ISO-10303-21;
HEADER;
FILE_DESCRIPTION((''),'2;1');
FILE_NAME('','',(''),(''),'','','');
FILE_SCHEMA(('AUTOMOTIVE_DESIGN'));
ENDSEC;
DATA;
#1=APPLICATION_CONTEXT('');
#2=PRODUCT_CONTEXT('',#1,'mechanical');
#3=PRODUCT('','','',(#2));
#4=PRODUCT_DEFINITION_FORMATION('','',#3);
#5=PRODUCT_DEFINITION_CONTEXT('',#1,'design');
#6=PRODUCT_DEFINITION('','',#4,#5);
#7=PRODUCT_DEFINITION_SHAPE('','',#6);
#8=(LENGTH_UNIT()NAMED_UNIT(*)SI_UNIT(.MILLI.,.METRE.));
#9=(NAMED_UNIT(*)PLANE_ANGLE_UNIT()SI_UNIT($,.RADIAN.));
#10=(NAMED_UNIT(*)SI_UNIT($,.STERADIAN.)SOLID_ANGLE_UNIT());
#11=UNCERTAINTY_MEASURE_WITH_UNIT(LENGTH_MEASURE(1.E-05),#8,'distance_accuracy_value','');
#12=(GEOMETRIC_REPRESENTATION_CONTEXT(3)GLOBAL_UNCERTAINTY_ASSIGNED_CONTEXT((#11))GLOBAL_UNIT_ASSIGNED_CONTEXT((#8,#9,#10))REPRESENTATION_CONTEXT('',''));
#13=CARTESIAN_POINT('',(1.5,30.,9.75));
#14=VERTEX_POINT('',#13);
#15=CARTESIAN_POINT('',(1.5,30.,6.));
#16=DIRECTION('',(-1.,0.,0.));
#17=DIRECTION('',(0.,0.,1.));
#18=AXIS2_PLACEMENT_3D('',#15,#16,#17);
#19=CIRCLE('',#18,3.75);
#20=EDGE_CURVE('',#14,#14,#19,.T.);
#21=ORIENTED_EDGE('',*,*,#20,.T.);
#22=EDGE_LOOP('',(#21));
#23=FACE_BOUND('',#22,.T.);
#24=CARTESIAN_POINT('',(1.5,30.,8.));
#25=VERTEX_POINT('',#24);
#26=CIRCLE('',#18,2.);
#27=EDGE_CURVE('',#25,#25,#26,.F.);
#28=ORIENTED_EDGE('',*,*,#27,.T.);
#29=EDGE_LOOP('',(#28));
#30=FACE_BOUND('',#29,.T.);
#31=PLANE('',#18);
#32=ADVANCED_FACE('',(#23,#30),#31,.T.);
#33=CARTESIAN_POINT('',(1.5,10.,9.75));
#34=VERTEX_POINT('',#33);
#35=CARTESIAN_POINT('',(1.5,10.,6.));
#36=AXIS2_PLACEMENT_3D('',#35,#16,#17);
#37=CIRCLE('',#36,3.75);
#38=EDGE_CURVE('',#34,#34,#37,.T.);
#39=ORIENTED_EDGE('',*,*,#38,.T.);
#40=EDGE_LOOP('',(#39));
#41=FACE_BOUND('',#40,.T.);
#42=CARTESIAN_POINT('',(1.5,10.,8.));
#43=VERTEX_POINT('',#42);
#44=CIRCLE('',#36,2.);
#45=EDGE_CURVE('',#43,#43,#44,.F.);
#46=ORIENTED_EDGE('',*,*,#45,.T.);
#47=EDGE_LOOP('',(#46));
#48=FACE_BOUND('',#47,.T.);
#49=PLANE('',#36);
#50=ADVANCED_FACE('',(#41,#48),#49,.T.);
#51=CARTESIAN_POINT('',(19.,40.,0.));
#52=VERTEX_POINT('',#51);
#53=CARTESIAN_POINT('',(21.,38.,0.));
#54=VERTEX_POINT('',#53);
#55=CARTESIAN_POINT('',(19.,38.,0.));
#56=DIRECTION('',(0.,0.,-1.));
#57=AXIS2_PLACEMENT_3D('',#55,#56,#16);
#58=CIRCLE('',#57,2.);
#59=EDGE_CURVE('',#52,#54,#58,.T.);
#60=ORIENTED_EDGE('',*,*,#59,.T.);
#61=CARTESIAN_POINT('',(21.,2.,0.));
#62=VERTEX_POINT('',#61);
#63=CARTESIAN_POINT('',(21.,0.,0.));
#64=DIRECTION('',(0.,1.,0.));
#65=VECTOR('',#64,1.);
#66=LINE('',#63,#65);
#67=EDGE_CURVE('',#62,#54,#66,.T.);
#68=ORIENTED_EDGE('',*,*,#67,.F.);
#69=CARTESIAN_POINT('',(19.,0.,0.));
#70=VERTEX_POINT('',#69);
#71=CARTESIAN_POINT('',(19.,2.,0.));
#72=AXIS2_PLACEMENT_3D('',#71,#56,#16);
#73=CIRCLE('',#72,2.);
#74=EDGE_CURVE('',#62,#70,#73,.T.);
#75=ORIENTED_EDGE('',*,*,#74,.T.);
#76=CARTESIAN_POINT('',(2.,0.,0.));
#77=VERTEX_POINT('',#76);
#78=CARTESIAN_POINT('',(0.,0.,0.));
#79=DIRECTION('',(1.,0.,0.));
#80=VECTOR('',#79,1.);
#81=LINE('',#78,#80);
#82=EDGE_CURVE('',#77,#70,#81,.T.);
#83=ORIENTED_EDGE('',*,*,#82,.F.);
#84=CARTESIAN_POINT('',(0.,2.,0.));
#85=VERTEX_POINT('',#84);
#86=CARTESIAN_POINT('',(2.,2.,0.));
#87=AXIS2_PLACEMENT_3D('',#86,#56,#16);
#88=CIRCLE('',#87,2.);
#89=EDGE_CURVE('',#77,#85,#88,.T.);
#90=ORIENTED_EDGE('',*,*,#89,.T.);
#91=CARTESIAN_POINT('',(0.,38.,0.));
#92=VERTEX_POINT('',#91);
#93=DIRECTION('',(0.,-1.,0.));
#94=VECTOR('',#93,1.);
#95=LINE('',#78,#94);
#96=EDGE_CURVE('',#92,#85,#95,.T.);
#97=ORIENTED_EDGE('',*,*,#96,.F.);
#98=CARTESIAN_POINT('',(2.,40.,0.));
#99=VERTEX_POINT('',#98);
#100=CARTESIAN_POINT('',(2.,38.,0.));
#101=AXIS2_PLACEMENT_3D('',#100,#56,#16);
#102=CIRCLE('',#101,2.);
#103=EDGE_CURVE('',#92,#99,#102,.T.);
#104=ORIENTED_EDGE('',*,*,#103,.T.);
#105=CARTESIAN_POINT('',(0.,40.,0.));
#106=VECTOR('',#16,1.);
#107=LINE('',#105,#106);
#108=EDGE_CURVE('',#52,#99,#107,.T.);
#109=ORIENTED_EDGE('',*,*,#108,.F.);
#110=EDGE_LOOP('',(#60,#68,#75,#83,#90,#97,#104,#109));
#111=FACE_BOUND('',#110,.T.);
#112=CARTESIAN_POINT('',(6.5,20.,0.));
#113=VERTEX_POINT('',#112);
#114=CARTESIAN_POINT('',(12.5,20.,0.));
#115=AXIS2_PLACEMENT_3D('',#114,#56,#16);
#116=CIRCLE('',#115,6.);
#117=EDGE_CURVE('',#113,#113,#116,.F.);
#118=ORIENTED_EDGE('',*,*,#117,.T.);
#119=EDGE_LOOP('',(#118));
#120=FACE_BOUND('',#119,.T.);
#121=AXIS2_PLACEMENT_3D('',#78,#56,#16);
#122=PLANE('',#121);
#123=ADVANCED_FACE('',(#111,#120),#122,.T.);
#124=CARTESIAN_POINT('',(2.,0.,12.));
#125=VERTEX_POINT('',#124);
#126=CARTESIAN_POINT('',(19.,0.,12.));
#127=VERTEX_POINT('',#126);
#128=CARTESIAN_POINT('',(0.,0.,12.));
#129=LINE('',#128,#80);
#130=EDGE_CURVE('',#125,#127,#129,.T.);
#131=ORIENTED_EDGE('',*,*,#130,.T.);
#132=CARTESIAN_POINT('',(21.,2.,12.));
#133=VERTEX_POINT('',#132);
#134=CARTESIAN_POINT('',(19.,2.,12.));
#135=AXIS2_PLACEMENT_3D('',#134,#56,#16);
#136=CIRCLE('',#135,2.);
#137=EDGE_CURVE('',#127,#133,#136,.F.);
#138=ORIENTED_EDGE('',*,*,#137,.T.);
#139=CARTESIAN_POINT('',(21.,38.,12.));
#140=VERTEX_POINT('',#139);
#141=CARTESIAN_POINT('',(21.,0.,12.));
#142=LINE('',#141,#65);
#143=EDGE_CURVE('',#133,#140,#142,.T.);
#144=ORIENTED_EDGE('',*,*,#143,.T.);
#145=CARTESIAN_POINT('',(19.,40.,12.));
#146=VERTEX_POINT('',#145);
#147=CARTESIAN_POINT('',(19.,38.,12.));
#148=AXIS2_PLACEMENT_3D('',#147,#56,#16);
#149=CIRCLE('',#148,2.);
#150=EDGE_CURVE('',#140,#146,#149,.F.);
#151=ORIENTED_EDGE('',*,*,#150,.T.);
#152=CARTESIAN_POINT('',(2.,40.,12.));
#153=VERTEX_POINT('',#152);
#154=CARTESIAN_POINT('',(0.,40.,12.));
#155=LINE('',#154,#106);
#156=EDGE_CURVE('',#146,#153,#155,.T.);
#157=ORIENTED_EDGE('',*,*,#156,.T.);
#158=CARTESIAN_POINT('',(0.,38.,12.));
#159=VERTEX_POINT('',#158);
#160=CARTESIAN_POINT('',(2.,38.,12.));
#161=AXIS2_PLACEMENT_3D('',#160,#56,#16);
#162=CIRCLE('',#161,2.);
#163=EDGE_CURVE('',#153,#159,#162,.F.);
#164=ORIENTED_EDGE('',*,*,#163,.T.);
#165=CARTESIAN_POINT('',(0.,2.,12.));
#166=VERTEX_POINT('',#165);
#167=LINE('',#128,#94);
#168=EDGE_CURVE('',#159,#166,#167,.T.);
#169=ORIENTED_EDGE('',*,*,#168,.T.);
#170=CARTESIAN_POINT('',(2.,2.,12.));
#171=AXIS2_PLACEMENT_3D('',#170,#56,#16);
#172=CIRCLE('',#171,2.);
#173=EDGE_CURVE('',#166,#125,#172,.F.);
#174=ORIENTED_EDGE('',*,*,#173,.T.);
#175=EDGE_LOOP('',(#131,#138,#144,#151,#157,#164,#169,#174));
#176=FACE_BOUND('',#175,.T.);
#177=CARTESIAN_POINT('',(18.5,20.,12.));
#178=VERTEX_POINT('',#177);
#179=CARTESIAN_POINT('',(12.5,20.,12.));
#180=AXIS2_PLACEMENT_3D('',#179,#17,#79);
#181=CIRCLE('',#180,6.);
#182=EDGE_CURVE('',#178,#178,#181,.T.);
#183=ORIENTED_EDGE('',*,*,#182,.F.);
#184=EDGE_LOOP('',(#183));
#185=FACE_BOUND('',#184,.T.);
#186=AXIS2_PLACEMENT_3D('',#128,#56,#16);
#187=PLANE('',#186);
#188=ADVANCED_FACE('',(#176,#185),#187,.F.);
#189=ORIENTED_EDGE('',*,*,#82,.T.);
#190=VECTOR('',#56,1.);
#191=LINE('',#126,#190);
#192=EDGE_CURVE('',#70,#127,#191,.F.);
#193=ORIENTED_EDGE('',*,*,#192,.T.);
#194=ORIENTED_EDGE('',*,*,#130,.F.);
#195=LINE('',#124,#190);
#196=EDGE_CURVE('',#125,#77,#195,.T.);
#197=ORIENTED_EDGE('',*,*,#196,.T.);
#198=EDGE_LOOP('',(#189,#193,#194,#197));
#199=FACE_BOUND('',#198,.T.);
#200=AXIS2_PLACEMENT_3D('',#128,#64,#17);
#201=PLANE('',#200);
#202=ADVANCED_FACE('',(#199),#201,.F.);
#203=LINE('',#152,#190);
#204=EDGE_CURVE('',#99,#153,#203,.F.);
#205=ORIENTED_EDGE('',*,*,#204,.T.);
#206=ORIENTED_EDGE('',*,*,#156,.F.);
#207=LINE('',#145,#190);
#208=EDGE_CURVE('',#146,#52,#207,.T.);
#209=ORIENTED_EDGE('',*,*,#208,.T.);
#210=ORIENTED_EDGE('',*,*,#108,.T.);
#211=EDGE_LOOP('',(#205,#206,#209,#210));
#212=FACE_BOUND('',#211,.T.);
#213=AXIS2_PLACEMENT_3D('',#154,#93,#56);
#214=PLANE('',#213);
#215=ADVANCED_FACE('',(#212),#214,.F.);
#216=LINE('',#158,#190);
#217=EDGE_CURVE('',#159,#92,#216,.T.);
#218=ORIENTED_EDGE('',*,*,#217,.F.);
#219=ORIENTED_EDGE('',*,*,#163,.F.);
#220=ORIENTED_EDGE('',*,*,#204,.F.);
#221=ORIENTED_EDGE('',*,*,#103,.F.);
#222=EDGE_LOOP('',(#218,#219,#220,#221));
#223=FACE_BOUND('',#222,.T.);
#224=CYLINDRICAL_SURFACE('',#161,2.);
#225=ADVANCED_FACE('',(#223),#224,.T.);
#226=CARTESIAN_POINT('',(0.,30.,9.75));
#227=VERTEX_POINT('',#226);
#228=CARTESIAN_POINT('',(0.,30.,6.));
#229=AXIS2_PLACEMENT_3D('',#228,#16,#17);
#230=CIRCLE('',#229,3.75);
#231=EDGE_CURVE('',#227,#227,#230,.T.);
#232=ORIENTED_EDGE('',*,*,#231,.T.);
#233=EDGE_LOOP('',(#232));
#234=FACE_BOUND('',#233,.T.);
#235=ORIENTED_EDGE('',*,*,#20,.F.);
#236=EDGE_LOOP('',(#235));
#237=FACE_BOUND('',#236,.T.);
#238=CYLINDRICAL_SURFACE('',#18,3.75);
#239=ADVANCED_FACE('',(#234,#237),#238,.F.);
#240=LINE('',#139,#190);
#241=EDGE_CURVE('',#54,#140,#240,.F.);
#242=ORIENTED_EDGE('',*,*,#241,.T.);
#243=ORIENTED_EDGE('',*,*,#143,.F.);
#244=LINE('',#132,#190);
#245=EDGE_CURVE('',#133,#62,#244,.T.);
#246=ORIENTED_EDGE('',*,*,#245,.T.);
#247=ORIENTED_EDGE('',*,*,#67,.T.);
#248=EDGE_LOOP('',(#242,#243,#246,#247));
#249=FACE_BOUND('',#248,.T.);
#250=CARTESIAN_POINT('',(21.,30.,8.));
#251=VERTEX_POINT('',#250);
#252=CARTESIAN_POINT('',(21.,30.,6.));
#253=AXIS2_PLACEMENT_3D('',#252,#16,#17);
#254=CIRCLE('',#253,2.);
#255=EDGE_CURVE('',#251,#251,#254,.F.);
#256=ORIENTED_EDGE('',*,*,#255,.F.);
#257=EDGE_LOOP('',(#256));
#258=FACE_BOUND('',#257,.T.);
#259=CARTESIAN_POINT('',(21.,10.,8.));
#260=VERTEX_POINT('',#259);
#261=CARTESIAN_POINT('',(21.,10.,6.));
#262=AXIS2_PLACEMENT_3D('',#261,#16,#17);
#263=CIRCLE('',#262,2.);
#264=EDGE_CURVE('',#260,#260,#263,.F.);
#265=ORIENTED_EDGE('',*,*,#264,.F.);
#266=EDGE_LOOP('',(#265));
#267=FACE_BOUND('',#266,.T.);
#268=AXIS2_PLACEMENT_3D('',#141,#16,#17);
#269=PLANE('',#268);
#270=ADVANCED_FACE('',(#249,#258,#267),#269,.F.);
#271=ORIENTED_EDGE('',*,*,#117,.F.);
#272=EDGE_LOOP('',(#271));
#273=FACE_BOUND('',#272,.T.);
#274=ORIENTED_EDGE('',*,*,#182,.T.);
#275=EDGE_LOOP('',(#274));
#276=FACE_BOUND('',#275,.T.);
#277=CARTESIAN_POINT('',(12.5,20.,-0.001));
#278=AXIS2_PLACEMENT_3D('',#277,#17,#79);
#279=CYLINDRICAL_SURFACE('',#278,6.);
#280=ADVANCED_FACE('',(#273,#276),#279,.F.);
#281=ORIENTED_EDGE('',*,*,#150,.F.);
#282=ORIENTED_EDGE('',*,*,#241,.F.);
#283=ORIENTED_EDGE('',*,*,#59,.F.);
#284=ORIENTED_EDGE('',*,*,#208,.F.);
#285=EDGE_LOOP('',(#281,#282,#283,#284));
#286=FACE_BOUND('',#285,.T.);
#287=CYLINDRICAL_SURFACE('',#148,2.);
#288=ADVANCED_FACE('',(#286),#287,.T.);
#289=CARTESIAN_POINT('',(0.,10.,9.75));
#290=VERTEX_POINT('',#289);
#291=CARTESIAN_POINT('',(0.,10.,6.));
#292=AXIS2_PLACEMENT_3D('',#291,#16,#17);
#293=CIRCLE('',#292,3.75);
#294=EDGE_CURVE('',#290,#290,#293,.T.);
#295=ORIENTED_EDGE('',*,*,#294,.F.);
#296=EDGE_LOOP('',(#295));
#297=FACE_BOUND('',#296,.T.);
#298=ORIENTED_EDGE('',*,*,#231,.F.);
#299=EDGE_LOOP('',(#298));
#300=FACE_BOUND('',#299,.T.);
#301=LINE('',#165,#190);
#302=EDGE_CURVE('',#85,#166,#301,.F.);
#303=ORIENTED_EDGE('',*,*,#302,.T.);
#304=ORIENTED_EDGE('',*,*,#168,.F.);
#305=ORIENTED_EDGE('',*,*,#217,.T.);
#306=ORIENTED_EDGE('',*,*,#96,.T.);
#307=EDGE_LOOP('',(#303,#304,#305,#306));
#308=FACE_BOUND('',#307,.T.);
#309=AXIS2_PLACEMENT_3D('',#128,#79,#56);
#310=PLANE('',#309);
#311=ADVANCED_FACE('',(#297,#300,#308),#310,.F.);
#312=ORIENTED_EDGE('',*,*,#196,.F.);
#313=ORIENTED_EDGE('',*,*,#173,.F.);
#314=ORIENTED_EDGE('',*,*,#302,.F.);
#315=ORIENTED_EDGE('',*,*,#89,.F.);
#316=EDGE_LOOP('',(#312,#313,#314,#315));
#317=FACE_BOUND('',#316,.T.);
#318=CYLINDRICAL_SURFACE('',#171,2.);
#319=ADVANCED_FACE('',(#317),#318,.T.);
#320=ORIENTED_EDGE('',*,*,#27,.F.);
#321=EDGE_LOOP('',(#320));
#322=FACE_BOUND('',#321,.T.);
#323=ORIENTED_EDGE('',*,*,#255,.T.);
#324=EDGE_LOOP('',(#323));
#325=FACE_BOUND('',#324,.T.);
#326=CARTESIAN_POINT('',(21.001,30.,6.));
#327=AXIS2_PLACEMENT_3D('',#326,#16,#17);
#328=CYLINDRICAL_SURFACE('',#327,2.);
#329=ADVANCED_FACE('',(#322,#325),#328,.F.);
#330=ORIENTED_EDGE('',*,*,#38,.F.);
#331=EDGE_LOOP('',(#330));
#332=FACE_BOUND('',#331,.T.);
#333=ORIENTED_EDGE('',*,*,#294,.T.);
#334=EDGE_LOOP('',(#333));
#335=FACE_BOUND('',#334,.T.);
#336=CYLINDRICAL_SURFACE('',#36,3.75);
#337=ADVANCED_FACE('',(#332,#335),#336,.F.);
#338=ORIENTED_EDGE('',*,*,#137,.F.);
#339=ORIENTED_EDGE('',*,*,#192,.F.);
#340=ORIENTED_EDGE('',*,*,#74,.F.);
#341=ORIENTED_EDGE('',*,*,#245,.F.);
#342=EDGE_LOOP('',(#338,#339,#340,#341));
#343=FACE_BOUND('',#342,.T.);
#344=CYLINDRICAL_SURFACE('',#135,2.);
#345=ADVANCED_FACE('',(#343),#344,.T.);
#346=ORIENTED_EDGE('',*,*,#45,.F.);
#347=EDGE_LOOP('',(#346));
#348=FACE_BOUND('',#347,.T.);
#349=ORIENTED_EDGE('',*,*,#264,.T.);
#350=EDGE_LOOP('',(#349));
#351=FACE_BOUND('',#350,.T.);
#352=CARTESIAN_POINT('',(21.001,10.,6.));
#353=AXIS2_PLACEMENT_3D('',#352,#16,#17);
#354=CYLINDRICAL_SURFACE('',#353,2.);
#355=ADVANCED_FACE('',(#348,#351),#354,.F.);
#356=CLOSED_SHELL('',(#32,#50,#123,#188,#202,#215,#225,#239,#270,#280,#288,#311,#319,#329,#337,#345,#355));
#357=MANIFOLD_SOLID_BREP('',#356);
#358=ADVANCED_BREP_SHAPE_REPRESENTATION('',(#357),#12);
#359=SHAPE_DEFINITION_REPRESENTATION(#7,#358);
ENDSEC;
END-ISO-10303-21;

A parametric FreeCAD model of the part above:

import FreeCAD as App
import Part
import Sketcher

V = App.Vector


def edges_at(feature, points):
    """Names of the edges that pass closest to the given points."""
    edges = feature.Shape.Edges
    near = lambda p: min(range(len(edges)), key=lambda i: edges[i].distToShape(Part.Vertex(*p))[0])
    return sorted({f"Edge{near(p) + 1}" for p in points})


def add_polygon(sketch, points):
    """Adds a closed chain of lines whose ends are joined by coincident constraints."""
    first, n = sketch.GeometryCount, len(points)
    for a, b in zip(points, points[1:] + points[:1]):
        sketch.addGeometry(Part.LineSegment(App.Vector(*a, 0), App.Vector(*b, 0)), False)
    for i in range(n):
        sketch.addConstraint(Sketcher.Constraint("Coincident", first + i, 2, first + (i + 1) % n, 1))

doc = App.newDocument("Part")
body = doc.addObject("PartDesign::Body", "Body")

sketch1 = body.newObject("Sketcher::SketchObject", "Sketch")
sketch1.AttachmentSupport = (doc.getObject("XY_Plane"), [""])
sketch1.MapMode = "FlatFace"
add_polygon(sketch1, [(0, 40), (0, 0), (21, 0), (21, 40)])
sketch1.addConstraint([
    Sketcher.Constraint("Vertical", 0),
    Sketcher.Constraint("Horizontal", 1),
    Sketcher.Constraint("Vertical", 2),
    Sketcher.Constraint("Horizontal", 3),
    Sketcher.Constraint("Coincident", 0, 2, -1, 1),
    Sketcher.Constraint("DistanceX", 1, 1, 1, 2, 21.0),
    Sketcher.Constraint("DistanceY", 0, 2, 0, 1, 40.0),
])
pad1 = body.newObject("PartDesign::Pad", "Pad")
pad1.Profile = sketch1
pad1.Length = 12

sketch2 = body.newObject("Sketcher::SketchObject", "Sketch001")
sketch2.AttachmentSupport = (doc.getObject("XY_Plane"), [""])
sketch2.MapMode = "FlatFace"
sketch2.AttachmentOffset = App.Placement(V(0, 0, 12), App.Rotation())
sketch2.addGeometry(Part.Circle(V(12, 20, 0), V(0, 0, 1), 6), False)
sketch2.addConstraint([
    Sketcher.Constraint("Diameter", 0, 12.0),
    Sketcher.Constraint("DistanceY", -1, 1, 0, 3, 20.0),
    Sketcher.Constraint("DistanceX", -1, 1, 0, 3, 12.5),
])
pocket1 = body.newObject("PartDesign::Pocket", "Pocket")
pocket1.Profile = sketch2
pocket1.Type = "UpToFirst"

sketch3 = body.newObject("Sketcher::SketchObject", "Sketch002")
sketch3.AttachmentSupport = (doc.getObject("YZ_Plane"), [""])
sketch3.MapMode = "FlatFace"
sketch3.addGeometry(Part.Circle(V(30, 6, 0), V(0, 0, 1), 2), False)
sketch3.addConstraint([
    Sketcher.Constraint("Diameter", 0, 4.0),
    Sketcher.Constraint("DistanceX", -1, 1, 0, 3, 30.0),
    Sketcher.Constraint("DistanceY", -1, 1, 0, 3, 6.0),
])
pocket2 = body.newObject("PartDesign::Pocket", "Pocket001")
pocket2.Profile = sketch3
pocket2.Type = "UpToFirst"
pocket2.Reversed = True

sketch4 = body.newObject("Sketcher::SketchObject", "Sketch003")
sketch4.AttachmentSupport = (doc.getObject("YZ_Plane"), [""])
sketch4.MapMode = "FlatFace"
sketch4.addGeometry(Part.Circle(V(10, 6, 0), V(0, 0, 1), 2), False)
sketch4.addConstraint([
    Sketcher.Constraint("Diameter", 0, 4.0),
    Sketcher.Constraint("DistanceX", -1, 1, 0, 3, 10.0),
    Sketcher.Constraint("DistanceY", -1, 1, 0, 3, 6.0),
])
pocket3 = body.newObject("PartDesign::Pocket", "Pocket002")
pocket3.Profile = sketch4
pocket3.Type = "UpToFirst"
pocket3.Reversed = True

sketch5 = body.newObject("Sketcher::SketchObject", "Sketch004")
sketch5.AttachmentSupport = (doc.getObject("YZ_Plane"), [""])
sketch5.MapMode = "FlatFace"
sketch5.addGeometry([
    Part.Circle(V(30, 6, 0), V(0, 0, 1), 3.8),
    Part.Circle(V(10, 6, 0), V(0, 0, 1), 3.8),
], False)
sketch5.addConstraint([
    Sketcher.Constraint("Equal", 0, 1),
    Sketcher.Constraint("Horizontal", 0, 3, 1, 3),
    Sketcher.Constraint("Diameter", 0, 7.5),
    Sketcher.Constraint("DistanceX", -1, 1, 0, 3, 30.0),
    Sketcher.Constraint("DistanceY", -1, 1, 0, 3, 6.0),
    Sketcher.Constraint("DistanceX", -1, 1, 1, 3, 10.0),
])
pocket4 = body.newObject("PartDesign::Pocket", "Pocket003")
pocket4.Profile = sketch5
pocket4.Length = 1.5
pocket4.Reversed = True
doc.recompute()

fillet = body.newObject("PartDesign::Fillet", "Fillet")
fillet.Base = (pocket4, edges_at(pocket4, [
    (0, 40, 6),
    (21, 40, 6),
    (21, 0, 6),
    (0, 0, 6),
]))
fillet.Radius = 2

doc.recompute()
